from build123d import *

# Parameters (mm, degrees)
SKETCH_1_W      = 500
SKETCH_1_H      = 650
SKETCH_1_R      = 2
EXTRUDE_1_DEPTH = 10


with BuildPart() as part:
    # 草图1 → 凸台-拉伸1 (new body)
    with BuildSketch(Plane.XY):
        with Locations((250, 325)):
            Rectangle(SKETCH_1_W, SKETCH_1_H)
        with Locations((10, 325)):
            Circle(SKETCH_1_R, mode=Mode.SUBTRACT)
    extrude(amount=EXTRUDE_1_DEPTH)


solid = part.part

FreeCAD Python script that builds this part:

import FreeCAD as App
import Part
import Sketcher

doc = App.newDocument("Part")
body = doc.addObject("PartDesign::Body", "Body")

# Sketch on XY plane
sketch1 = doc.addObject("Sketcher::SketchObject", "Sketch")
body.addObject(sketch1)
sketch1.AttachmentSupport = (doc.XY_Plane, [""])
sketch1.MapMode = "FlatFace"
sketch1.addGeometry([
    Part.LineSegment(App.Vector(0, 650, 0), App.Vector(0, 0, 0)),  # 0
    Part.LineSegment(App.Vector(0, 0, 0), App.Vector(500, 0, 0)),  # 1
    Part.LineSegment(App.Vector(500, 0, 0), App.Vector(500, 650, 0)),  # 2
    Part.LineSegment(App.Vector(500, 650, 0), App.Vector(0, 650, 0)),  # 3
    Part.Circle(App.Vector(10, 325, 0), App.Vector(0, 0, 1), 2),  # 4
], False)
sketch1.addConstraint([
    Sketcher.Constraint("Coincident", 0, 2, 1, 1),
    Sketcher.Constraint("Coincident", 1, 2, 2, 1),
    Sketcher.Constraint("Coincident", 2, 2, 3, 1),
    Sketcher.Constraint("Coincident", 3, 2, 0, 1),
    Sketcher.Constraint("Vertical", 0),
    Sketcher.Constraint("Horizontal", 1),
    Sketcher.Constraint("Vertical", 2),
    Sketcher.Constraint("Horizontal", 3),
    Sketcher.Constraint("Coincident", 0, 2, -1, 1),
    Sketcher.Constraint("Diameter", 4, 4.0),
    Sketcher.Constraint("DistanceX", 1, 1, 1, 2, 500.0),
    Sketcher.Constraint("DistanceY", 0, 2, 0, 1, 650.0),
    Sketcher.Constraint("DistanceX", -1, 1, 4, 3, 10.0),
    Sketcher.Constraint("DistanceY", -1, 1, 4, 3, 325.0),
])
pad1 = doc.addObject("PartDesign::Pad", "Pad")
body.addObject(pad1)
pad1.Profile = sketch1
pad1.Length = 10

doc.recompute()
